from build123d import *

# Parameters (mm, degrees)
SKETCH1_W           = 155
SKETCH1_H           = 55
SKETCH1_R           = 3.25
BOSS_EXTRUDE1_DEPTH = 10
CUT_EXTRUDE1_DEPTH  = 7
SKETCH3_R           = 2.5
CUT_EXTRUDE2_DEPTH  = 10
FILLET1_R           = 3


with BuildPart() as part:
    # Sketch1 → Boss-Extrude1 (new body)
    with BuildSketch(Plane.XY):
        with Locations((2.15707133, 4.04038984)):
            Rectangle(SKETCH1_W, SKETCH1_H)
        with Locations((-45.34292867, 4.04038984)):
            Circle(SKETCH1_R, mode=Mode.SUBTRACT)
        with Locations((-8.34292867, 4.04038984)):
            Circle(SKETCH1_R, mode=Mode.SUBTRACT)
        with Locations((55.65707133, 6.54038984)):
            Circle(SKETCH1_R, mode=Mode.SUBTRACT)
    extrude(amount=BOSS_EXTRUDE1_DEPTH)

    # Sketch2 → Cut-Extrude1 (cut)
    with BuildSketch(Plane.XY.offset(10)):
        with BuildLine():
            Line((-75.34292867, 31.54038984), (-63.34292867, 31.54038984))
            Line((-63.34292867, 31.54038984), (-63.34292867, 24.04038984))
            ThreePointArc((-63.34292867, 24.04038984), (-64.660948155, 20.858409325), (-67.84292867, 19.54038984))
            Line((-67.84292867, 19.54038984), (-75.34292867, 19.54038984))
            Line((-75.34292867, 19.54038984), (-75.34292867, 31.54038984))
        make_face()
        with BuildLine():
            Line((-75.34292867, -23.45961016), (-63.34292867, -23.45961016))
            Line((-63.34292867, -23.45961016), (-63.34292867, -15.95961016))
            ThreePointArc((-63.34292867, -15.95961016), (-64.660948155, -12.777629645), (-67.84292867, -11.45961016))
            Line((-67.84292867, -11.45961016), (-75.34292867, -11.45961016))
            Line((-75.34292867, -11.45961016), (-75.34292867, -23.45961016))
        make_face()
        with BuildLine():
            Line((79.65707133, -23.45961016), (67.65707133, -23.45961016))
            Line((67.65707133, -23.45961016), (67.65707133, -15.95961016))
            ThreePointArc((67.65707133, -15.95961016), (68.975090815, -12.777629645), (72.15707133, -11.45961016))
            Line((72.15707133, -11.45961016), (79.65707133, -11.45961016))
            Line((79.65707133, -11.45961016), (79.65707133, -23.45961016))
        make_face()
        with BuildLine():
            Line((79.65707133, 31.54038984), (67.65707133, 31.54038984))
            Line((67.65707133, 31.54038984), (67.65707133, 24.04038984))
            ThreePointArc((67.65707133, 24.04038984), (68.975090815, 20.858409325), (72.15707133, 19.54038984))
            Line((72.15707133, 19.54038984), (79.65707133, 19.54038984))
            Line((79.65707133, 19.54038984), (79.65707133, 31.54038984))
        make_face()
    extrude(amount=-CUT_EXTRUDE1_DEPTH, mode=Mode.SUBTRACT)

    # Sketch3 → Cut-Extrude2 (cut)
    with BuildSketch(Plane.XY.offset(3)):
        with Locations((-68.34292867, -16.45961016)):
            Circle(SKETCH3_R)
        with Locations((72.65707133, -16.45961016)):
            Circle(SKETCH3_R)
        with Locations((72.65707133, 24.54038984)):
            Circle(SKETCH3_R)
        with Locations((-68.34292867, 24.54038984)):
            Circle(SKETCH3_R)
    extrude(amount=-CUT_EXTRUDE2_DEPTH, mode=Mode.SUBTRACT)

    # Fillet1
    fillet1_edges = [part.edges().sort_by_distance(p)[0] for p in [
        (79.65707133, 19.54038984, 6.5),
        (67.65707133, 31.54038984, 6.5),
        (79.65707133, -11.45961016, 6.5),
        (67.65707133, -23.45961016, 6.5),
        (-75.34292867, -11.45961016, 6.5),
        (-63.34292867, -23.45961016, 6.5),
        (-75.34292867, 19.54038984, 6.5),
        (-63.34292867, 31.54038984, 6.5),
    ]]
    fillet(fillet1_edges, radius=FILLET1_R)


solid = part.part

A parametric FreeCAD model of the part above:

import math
import FreeCAD as App
import Part
import Sketcher
Q = App.Units.Quantity


def edges_at(feature, points):
    """Names of the edges that pass closest to the given points."""
    edges = feature.Shape.Edges
    near = lambda p: min(range(len(edges)), key=lambda i: edges[i].distToShape(Part.Vertex(*p))[0])
    return sorted({f"Edge{near(p) + 1}" for p in points})


def add_polygon(sketch, points):
    """Adds a closed chain of lines whose ends are joined by coincident constraints."""
    first, n = sketch.GeometryCount, len(points)
    for a, b in zip(points, points[1:] + points[:1]):
        sketch.addGeometry(Part.LineSegment(App.Vector(*a, 0), App.Vector(*b, 0)), False)
    for i in range(n):
        sketch.addConstraint(Sketcher.Constraint("Coincident", first + i, 2, first + (i + 1) % n, 1))

doc = App.newDocument("Part")
body = doc.addObject("PartDesign::Body", "Body")

# Sketch on XY plane
sketch1 = doc.addObject("Sketcher::SketchObject", "Sketch")
body.addObject(sketch1)
sketch1.AttachmentSupport = (doc.XY_Plane, [""])
sketch1.MapMode = "FlatFace"
add_polygon(sketch1, [(-75.3, 31.5), (-75.3, -23.5), (79.7, -23.5), (79.7, 31.5)])  # lines 0-3
sketch1.addGeometry(Part.Circle(App.Vector(-45.3, 4, 0), App.Vector(0, 0, 1), 3.2), False)  # 4
sketch1.addGeometry(Part.Circle(App.Vector(-8.3, 4, 0), App.Vector(0, 0, 1), 3.2), False)  # 5
sketch1.addGeometry(Part.Circle(App.Vector(55.7, 6.5, 0), App.Vector(0, 0, 1), 3.2), False)  # 6
sketch1.addConstraint(Sketcher.Constraint("Vertical", 0))
sketch1.addConstraint(Sketcher.Constraint("Horizontal", 1))
sketch1.addConstraint(Sketcher.Constraint("Vertical", 2))
sketch1.addConstraint(Sketcher.Constraint("Horizontal", 3))
sketch1.addConstraint(Sketcher.Constraint("Equal", 4, 5))
sketch1.addConstraint(Sketcher.Constraint("Equal", 5, 6))
sketch1.addConstraint(Sketcher.Constraint("Horizontal", 4, 3, 5, 3))
sketch1.addConstraint(Sketcher.Constraint("Diameter", 4, Q("6.5 mm")))
sketch1.addConstraint(Sketcher.Constraint("DistanceX", 1, 1, 1, 2, Q("155 mm")))
sketch1.addConstraint(Sketcher.Constraint("DistanceY", 0, 2, 0, 1, Q("55 mm")))
sketch1.addConstraint(Sketcher.Constraint("DistanceX", 4, 3, 5, 3, Q("37 mm")))
sketch1.addConstraint(Sketcher.Constraint("DistanceX", 5, 3, 6, 3, Q("64 mm")))
sketch1.addConstraint(Sketcher.Constraint("DistanceX", 0, 2, 4, 3, Q("30 mm")))
sketch1.addConstraint(Sketcher.Constraint("DistanceY", 0, 2, 6, 3, Q("30 mm")))
sketch1.addConstraint(Sketcher.Constraint("DistanceY", 5, 3, 6, 3, Q("2.5 mm")))
sketch1.addConstraint(Sketcher.Constraint("DistanceX", 4, 3, -1, 1, Q("45.342929 mm")))
sketch1.addConstraint(Sketcher.Constraint("DistanceY", -1, 1, 4, 3, Q("4.04039 mm")))
pad1 = doc.addObject("PartDesign::Pad", "Pad")
body.addObject(pad1)
pad1.Profile = sketch1
pad1.Length = 10

# Sketch on XY plane
sketch2 = doc.addObject("Sketcher::SketchObject", "Sketch001")
body.addObject(sketch2)
sketch2.AttachmentSupport = (doc.XY_Plane, [""])
sketch2.MapMode = "FlatFace"
sketch2.AttachmentOffset = App.Placement(App.Vector(0, 0, 10), App.Rotation())
sketch2.addGeometry(Part.LineSegment(App.Vector(-63.3, 31.5, 0), App.Vector(-75.3, 31.5, 0)), False)
sketch2.addGeometry(Part.LineSegment(App.Vector(-75.3, 31.5, 0), App.Vector(-75.3, 19.5, 0)), False)
sketch2.addGeometry(Part.LineSegment(App.Vector(-75.3, 19.5, 0), App.Vector(-67.8, 19.5, 0)), False)
sketch2.addGeometry(Part.ArcOfCircle(Part.Circle(App.Vector(-67.8, 24, 0), App.Vector(0, 0, 1), 4.5), math.radians(-90), math.radians(0)), False)
sketch2.addGeometry(Part.LineSegment(App.Vector(-63.3, 24, 0), App.Vector(-63.3, 31.5, 0)), False)
sketch2.addGeometry(Part.LineSegment(App.Vector(-75.3, -23.5, 0), App.Vector(-63.3, -23.5, 0)), False)
sketch2.addGeometry(Part.LineSegment(App.Vector(-63.3, -23.5, 0), App.Vector(-63.3, -16, 0)), False)
sketch2.addGeometry(Part.ArcOfCircle(Part.Circle(App.Vector(-67.8, -16, 0), App.Vector(0, 0, 1), 4.5), math.radians(0), math.radians(90)), False)
sketch2.addGeometry(Part.LineSegment(App.Vector(-67.8, -11.5, 0), App.Vector(-75.3, -11.5, 0)), False)
sketch2.addGeometry(Part.LineSegment(App.Vector(-75.3, -11.5, 0), App.Vector(-75.3, -23.5, 0)), False)
sketch2.addGeometry(Part.LineSegment(App.Vector(67.7, -23.5, 0), App.Vector(79.7, -23.5, 0)), False)
sketch2.addGeometry(Part.LineSegment(App.Vector(79.7, -23.5, 0), App.Vector(79.7, -11.5, 0)), False)
sketch2.addGeometry(Part.LineSegment(App.Vector(79.7, -11.5, 0), App.Vector(72.2, -11.5, 0)), False)
sketch2.addGeometry(Part.ArcOfCircle(Part.Circle(App.Vector(72.2, -16, 0), App.Vector(0, 0, 1), 4.5), math.radians(90), math.radians(180)), False)
sketch2.addGeometry(Part.LineSegment(App.Vector(67.7, -16, 0), App.Vector(67.7, -23.5, 0)), False)
sketch2.addGeometry(Part.LineSegment(App.Vector(79.7, 31.5, 0), App.Vector(67.7, 31.5, 0)), False)
sketch2.addGeometry(Part.LineSegment(App.Vector(67.7, 31.5, 0), App.Vector(67.7, 24, 0)), False)
sketch2.addGeometry(Part.ArcOfCircle(Part.Circle(App.Vector(72.2, 24, 0), App.Vector(0, 0, 1), 4.5), math.radians(-180), math.radians(-90)), False)
sketch2.addGeometry(Part.LineSegment(App.Vector(72.2, 19.5, 0), App.Vector(79.7, 19.5, 0)), False)
sketch2.addGeometry(Part.LineSegment(App.Vector(79.7, 19.5, 0), App.Vector(79.7, 31.5, 0)), False)
sketch2.addConstraint(Sketcher.Constraint("Coincident", 0, 2, 1, 1))
sketch2.addConstraint(Sketcher.Constraint("Coincident", 1, 2, 2, 1))
sketch2.addConstraint(Sketcher.Constraint("Tangent", 2, 2, 3, 1))
sketch2.addConstraint(Sketcher.Constraint("Tangent", 3, 2, 4, 1))
sketch2.addConstraint(Sketcher.Constraint("Coincident", 4, 2, 0, 1))
sketch2.addConstraint(Sketcher.Constraint("Coincident", 5, 2, 6, 1))
sketch2.addConstraint(Sketcher.Constraint("Tangent", 6, 2, 7, 1))
sketch2.addConstraint(Sketcher.Constraint("Tangent", 7, 2, 8, 1))
sketch2.addConstraint(Sketcher.Constraint("Coincident", 8, 2, 9, 1))
sketch2.addConstraint(Sketcher.Constraint("Coincident", 9, 2, 5, 1))
sketch2.addConstraint(Sketcher.Constraint("Coincident", 10, 2, 11, 1))
sketch2.addConstraint(Sketcher.Constraint("Coincident", 11, 2, 12, 1))
sketch2.addConstraint(Sketcher.Constraint("Tangent", 12, 2, 13, 1))
sketch2.addConstraint(Sketcher.Constraint("Tangent", 13, 2, 14, 1))
sketch2.addConstraint(Sketcher.Constraint("Coincident", 14, 2, 10, 1))
sketch2.addConstraint(Sketcher.Constraint("Coincident", 15, 2, 16, 1))
sketch2.addConstraint(Sketcher.Constraint("Tangent", 16, 2, 17, 1))
sketch2.addConstraint(Sketcher.Constraint("Tangent", 17, 2, 18, 1))
sketch2.addConstraint(Sketcher.Constraint("Coincident", 18, 2, 19, 1))
sketch2.addConstraint(Sketcher.Constraint("Coincident", 19, 2, 15, 1))
sketch2.addConstraint(Sketcher.Constraint("Horizontal", 0))
sketch2.addConstraint(Sketcher.Constraint("Vertical", 1))
sketch2.addConstraint(Sketcher.Constraint("Horizontal", 2))
sketch2.addConstraint(Sketcher.Constraint("Vertical", 4))
sketch2.addConstraint(Sketcher.Constraint("Horizontal", 5))
sketch2.addConstraint(Sketcher.Constraint("Vertical", 6))
sketch2.addConstraint(Sketcher.Constraint("Horizontal", 8))
sketch2.addConstraint(Sketcher.Constraint("Vertical", 9))
sketch2.addConstraint(Sketcher.Constraint("Horizontal", 10))
sketch2.addConstraint(Sketcher.Constraint("Vertical", 11))
sketch2.addConstraint(Sketcher.Constraint("Horizontal", 12))
sketch2.addConstraint(Sketcher.Constraint("Vertical", 14))
sketch2.addConstraint(Sketcher.Constraint("Horizontal", 15))
sketch2.addConstraint(Sketcher.Constraint("Vertical", 16))
sketch2.addConstraint(Sketcher.Constraint("Horizontal", 18))
sketch2.addConstraint(Sketcher.Constraint("Vertical", 19))
sketch2.addConstraint(Sketcher.Constraint("Equal", 3, 7))
sketch2.addConstraint(Sketcher.Constraint("Equal", 7, 13))
sketch2.addConstraint(Sketcher.Constraint("Equal", 13, 17))
sketch2.addConstraint(Sketcher.Constraint("Horizontal", 7, 3, 13, 3))
sketch2.addConstraint(Sketcher.Constraint("Horizontal", 3, 3, 17, 3))
sketch2.addConstraint(Sketcher.Constraint("Horizontal", 9, 2, 10, 2))
sketch2.addConstraint(Sketcher.Constraint("Horizontal", 4, 2, 15, 2))
sketch2.addConstraint(Sketcher.Constraint("Vertical", 3, 3, 7, 3))
sketch2.addConstraint(Sketcher.Constraint("Vertical", 13, 3, 17, 3))
sketch2.addConstraint(Sketcher.Constraint("Vertical", 1, 2, 8, 2))
sketch2.addConstraint(Sketcher.Constraint("Vertical", 11, 2, 18, 2))
sketch2.addConstraint(Sketcher.Constraint("Equal", 5, 10))
sketch2.addConstraint(Sketcher.Constraint("Equal", 15, 1))
sketch2.addConstraint(Sketcher.Constraint("Equal", 4, 6))
sketch2.addConstraint(Sketcher.Constraint("Radius", 3, Q("4.5 mm")))
sketch2.addConstraint(Sketcher.Constraint("DistanceX", 0, 2, 0, 1, Q("12 mm")))
sketch2.addConstraint(Sketcher.Constraint("DistanceY", 7, 3, 3, 3, Q("40 mm")))
sketch2.addConstraint(Sketcher.Constraint("DistanceX", 7, 3, 13, 3, Q("140 mm")))
sketch2.addConstraint(Sketcher.Constraint("DistanceX", 3, 3, -1, 1, Q("67.842929 mm")))
sketch2.addConstraint(Sketcher.Constraint("DistanceY", -1, 1, 3, 3, Q("24.04039 mm")))
pocket1 = doc.addObject("PartDesign::Pocket", "Pocket")
body.addObject(pocket1)
pocket1.Profile = sketch2
pocket1.Length = 7

# Sketch on XY plane
sketch3 = doc.addObject("Sketcher::SketchObject", "Sketch002")
body.addObject(sketch3)
sketch3.AttachmentSupport = (doc.XY_Plane, [""])
sketch3.MapMode = "FlatFace"
sketch3.AttachmentOffset = App.Placement(App.Vector(0, 0, 3), App.Rotation())
sketch3.addGeometry(Part.Circle(App.Vector(-68.3, -16.5, 0), App.Vector(0, 0, 1), 2.5), False)
sketch3.addGeometry(Part.Circle(App.Vector(72.7, -16.5, 0), App.Vector(0, 0, 1), 2.5), False)
sketch3.addGeometry(Part.Circle(App.Vector(72.7, 24.5, 0), App.Vector(0, 0, 1), 2.5), False)
sketch3.addGeometry(Part.Circle(App.Vector(-68.3, 24.5, 0), App.Vector(0, 0, 1), 2.5), False)
sketch3.addConstraint(Sketcher.Constraint("Equal", 0, 1))
sketch3.addConstraint(Sketcher.Constraint("Equal", 1, 2))
sketch3.addConstraint(Sketcher.Constraint("Equal", 2, 3))
sketch3.addConstraint(Sketcher.Constraint("Horizontal", 0, 3, 1, 3))
sketch3.addConstraint(Sketcher.Constraint("Horizontal", 2, 3, 3, 3))
sketch3.addConstraint(Sketcher.Constraint("Vertical", 1, 3, 2, 3))
sketch3.addConstraint(Sketcher.Constraint("Vertical", 0, 3, 3, 3))
sketch3.addConstraint(Sketcher.Constraint("Diameter", 0, Q("5 mm")))
sketch3.addConstraint(Sketcher.Constraint("DistanceX", 0, 3, 1, 3, Q("141 mm")))
sketch3.addConstraint(Sketcher.Constraint("DistanceY", 1, 3, 2, 3, Q("41 mm")))
sketch3.addConstraint(Sketcher.Constraint("DistanceX", 0, 3, -1, 1, Q("68.342929 mm")))
sketch3.addConstraint(Sketcher.Constraint("DistanceY", 0, 3, -1, 1, Q("16.45961 mm")))
pocket2 = doc.addObject("PartDesign::Pocket", "Pocket001")
body.addObject(pocket2)
pocket2.Profile = sketch3
pocket2.Length = 10
doc.recompute()

fillet = doc.addObject("PartDesign::Fillet", "Fillet")
body.addObject(fillet)
fillet.Base = (pocket2, edges_at(pocket2, [
    (79.657, 19.54, 6.5),
    (67.657, 31.54, 6.5),
    (79.657, -11.46, 6.5),
    (67.657, -23.46, 6.5),
    (-75.343, -11.46, 6.5),
    (-63.343, -23.46, 6.5),
    (-75.343, 19.54, 6.5),
    (-63.343, 31.54, 6.5),
]))
fillet.Radius = 3

doc.recompute()
